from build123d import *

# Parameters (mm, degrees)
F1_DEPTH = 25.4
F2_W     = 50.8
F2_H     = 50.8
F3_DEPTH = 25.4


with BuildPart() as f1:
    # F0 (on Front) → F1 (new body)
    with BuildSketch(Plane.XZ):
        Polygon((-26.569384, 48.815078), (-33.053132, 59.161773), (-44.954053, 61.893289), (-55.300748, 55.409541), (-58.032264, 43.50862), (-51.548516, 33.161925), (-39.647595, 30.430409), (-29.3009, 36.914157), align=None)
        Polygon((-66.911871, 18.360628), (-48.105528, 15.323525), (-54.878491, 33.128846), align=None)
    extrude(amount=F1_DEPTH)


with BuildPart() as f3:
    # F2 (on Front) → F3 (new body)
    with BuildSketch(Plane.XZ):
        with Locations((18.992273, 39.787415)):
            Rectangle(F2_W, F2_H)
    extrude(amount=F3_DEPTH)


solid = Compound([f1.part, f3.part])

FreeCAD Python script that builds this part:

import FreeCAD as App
import Part
import Sketcher
from FreeCAD import Vector
Q = App.Units.Quantity


def add_polygon(sketch, points):
    """Adds a closed chain of lines whose ends are joined by coincident constraints."""
    first, n = sketch.GeometryCount, len(points)
    for a, b in zip(points, points[1:] + points[:1]):
        sketch.addGeometry(Part.LineSegment(App.Vector(*a, 0), App.Vector(*b, 0)), False)
    for i in range(n):
        sketch.addConstraint(Sketcher.Constraint("Coincident", first + i, 2, first + (i + 1) % n, 1))

doc = App.newDocument("Part")
body = doc.addObject("PartDesign::Body", "Body")
body.AllowCompound = True

sketch1 = doc.addObject("Sketcher::SketchObject", "Sketch")
body.addObject(sketch1)
sketch1.AttachmentSupport = (doc.XZ_Plane, [""])
sketch1.MapMode = "FlatFace"
add_polygon(sketch1, [(-27, 49), (-33, 59), (-45, 62), (-55, 55), (-58, 44), (-52, 33), (-40, 30), (-29, 37)])
add_polygon(sketch1, [(-67, 18), (-48, 15), (-55, 33)])
sketch1.addConstraint([
    Sketcher.Constraint("Perpendicular", 0, 2),
    Sketcher.Constraint("Perpendicular", 1, 3),
    Sketcher.Constraint("Perpendicular", 2, 4),
    Sketcher.Constraint("Perpendicular", 3, 5),
    Sketcher.Constraint("Perpendicular", 4, 6),
    Sketcher.Constraint("Perpendicular", 5, 7),
    Sketcher.Constraint("Equal", 0, 1),
    Sketcher.Constraint("Equal", 1, 2),
    Sketcher.Constraint("Equal", 2, 3),
    Sketcher.Constraint("Equal", 3, 4),
    Sketcher.Constraint("Equal", 4, 5),
    Sketcher.Constraint("Equal", 8, 9),
    Sketcher.Constraint("Equal", 9, 10),
    Sketcher.Constraint("Distance", 8, Q("0.75 in")),
    Sketcher.Constraint("DistanceX", 6, 2, -1, 1, 29.3009),
    Sketcher.Constraint("DistanceY", 8, 2, 4, 2, 17.8384),
    Sketcher.Constraint("Distance", 1, 12.210369),
    Sketcher.Constraint("DistanceX", 0, 2, -1, 1, 33.053132),
    Sketcher.Constraint("DistanceY", -1, 1, 1, 2, 61.893289),
    Sketcher.Constraint("DistanceY", -1, 1, 2, 2, 55.409541),
    Sketcher.Constraint("DistanceX", 9, 2, -1, 1, 54.878491),
    Sketcher.Constraint("DistanceX", 10, 2, -1, 1, 66.911871),
])
pad1 = doc.addObject("PartDesign::Pad", "Pad")
body.addObject(pad1)
pad1.Profile = sketch1
pad1.Length = Q("1 in")
body2 = doc.addObject("PartDesign::Body", "Body001")

sketch2 = doc.addObject("Sketcher::SketchObject", "Sketch001")
body2.addObject(sketch2)
sketch2.AttachmentSupport = (doc.getObject("XZ_Plane001"), [""])
sketch2.MapMode = "FlatFace"
add_polygon(sketch2, [(-6, 65), (-6, 14), (44, 14), (44, 65)])
sketch2.addConstraint([
    Sketcher.Constraint("Vertical", 0),
    Sketcher.Constraint("Horizontal", 1),
    Sketcher.Constraint("Vertical", 2),
    Sketcher.Constraint("Horizontal", 3),
    Sketcher.Constraint("Equal", 3, 0),
    Sketcher.Constraint("DistanceX", 1, 1, 1, 2, Q("2 in")),
    Sketcher.Constraint("DistanceX", 0, 2, -1, 1, 6.407727),
    Sketcher.Constraint("DistanceY", -1, 1, 0, 2, 14.387415),
])
pad2 = doc.addObject("PartDesign::Pad", "Pad001")
body2.addObject(pad2)
pad2.Profile = sketch2
pad2.Length = Q("1 in")

doc.recompute()
